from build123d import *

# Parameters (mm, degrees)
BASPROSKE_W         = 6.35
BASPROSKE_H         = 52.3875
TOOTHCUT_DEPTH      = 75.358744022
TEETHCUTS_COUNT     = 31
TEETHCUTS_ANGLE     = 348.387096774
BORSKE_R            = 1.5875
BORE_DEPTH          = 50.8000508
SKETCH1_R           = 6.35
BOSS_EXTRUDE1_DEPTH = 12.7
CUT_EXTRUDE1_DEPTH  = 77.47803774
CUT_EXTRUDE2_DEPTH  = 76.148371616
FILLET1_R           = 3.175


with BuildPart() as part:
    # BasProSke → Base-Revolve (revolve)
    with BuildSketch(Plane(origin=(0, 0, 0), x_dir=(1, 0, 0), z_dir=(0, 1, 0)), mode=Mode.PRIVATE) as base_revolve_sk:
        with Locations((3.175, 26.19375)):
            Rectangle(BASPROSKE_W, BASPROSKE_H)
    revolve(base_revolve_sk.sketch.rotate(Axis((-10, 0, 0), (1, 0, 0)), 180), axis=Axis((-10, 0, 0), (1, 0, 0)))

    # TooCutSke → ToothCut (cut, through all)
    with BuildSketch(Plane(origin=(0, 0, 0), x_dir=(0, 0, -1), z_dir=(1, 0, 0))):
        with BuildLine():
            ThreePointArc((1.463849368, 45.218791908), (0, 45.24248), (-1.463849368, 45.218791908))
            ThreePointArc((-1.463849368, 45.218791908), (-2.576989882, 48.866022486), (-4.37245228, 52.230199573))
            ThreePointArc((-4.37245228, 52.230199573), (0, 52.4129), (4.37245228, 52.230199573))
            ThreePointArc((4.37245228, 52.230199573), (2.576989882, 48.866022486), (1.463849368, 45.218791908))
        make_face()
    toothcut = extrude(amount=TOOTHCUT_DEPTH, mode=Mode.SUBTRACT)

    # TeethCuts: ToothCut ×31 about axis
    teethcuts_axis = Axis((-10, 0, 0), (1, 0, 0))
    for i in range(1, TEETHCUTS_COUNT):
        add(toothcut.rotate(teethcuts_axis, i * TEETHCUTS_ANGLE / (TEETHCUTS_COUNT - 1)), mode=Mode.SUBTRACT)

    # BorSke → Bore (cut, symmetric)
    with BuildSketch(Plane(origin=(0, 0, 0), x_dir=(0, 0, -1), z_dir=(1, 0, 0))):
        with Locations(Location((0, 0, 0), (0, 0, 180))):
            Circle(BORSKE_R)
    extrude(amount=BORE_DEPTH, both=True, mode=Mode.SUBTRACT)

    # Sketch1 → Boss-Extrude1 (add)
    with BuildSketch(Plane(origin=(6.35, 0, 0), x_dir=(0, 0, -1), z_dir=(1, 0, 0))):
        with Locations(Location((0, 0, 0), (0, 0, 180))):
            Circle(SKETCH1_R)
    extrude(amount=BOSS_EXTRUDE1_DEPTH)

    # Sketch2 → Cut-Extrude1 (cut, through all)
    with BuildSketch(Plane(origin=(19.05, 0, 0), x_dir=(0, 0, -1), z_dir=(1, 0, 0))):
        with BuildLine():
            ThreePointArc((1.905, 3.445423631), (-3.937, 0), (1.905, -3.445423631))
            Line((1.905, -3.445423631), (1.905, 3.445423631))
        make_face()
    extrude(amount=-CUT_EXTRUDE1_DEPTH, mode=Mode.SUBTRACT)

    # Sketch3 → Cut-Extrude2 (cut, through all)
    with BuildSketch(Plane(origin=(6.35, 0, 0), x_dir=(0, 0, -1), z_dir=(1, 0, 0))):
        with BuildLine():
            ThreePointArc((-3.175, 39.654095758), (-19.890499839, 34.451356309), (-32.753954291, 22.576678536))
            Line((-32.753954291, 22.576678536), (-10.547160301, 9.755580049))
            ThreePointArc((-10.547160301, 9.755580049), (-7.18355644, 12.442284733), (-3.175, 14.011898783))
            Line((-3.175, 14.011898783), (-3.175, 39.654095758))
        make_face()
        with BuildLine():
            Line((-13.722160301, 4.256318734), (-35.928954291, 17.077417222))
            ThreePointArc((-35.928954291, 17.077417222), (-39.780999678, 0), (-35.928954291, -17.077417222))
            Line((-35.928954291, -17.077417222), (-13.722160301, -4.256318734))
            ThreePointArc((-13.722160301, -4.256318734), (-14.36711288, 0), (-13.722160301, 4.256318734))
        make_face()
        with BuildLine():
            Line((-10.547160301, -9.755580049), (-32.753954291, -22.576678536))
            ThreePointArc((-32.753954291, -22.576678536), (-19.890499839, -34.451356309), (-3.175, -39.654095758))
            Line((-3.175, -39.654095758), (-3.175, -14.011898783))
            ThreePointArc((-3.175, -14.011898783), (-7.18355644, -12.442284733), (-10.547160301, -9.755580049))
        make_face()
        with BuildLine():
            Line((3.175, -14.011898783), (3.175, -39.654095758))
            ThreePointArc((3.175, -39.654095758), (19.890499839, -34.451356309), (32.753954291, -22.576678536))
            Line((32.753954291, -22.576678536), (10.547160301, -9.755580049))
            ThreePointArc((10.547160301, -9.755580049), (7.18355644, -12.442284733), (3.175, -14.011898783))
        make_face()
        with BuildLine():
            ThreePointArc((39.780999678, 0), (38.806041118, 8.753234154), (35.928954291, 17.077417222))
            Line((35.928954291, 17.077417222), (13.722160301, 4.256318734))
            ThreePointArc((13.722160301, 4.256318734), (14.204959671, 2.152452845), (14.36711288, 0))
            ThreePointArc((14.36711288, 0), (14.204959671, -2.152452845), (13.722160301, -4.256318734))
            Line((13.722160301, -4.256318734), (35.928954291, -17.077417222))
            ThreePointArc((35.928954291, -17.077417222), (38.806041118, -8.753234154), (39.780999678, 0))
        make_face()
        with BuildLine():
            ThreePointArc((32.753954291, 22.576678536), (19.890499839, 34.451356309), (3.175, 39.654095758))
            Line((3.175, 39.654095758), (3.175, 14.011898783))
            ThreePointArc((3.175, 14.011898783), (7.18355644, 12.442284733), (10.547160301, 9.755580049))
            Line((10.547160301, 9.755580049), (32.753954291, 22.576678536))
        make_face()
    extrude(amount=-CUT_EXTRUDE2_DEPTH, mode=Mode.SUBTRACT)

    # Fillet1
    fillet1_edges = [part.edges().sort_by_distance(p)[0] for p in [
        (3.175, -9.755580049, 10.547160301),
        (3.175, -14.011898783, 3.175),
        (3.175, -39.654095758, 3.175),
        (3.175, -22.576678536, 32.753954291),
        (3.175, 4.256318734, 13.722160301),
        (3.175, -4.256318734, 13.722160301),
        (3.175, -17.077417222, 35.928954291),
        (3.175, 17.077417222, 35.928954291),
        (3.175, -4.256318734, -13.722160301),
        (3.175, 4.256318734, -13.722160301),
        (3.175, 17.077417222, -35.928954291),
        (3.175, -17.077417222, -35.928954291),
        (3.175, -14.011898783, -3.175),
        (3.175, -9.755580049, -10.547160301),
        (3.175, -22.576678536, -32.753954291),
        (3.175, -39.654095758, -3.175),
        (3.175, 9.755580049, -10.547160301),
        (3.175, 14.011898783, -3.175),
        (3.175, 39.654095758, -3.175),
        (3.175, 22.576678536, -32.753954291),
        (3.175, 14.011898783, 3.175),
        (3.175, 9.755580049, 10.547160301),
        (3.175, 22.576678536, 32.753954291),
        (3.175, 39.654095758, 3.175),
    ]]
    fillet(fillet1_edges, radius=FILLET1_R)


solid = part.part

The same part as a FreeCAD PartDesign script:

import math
import FreeCAD as App
import Part
import Sketcher
Q = App.Units.Quantity


def edges_at(feature, points):
    """Names of the edges that pass closest to the given points."""
    edges = feature.Shape.Edges
    near = lambda p: min(range(len(edges)), key=lambda i: edges[i].distToShape(Part.Vertex(*p))[0])
    return sorted({f"Edge{near(p) + 1}" for p in points})


def add_polygon(sketch, points):
    """Adds a closed chain of lines whose ends are joined by coincident constraints."""
    first, n = sketch.GeometryCount, len(points)
    for a, b in zip(points, points[1:] + points[:1]):
        sketch.addGeometry(Part.LineSegment(App.Vector(*a, 0), App.Vector(*b, 0)), False)
    for i in range(n):
        sketch.addConstraint(Sketcher.Constraint("Coincident", first + i, 2, first + (i + 1) % n, 1))

doc = App.newDocument("Part")
body = doc.addObject("PartDesign::Body", "Body")

# Sketch on XZ plane
sketch1 = body.newObject("Sketcher::SketchObject", "Sketch")
sketch1.AttachmentSupport = (doc.getObject("XZ_Plane"), [""])
sketch1.MapMode = "FlatFace"
add_polygon(sketch1, [(0, -52), (0, 0), (6, 0), (6, -52)])  # lines 0-3
sketch1.addConstraint([
    Sketcher.Constraint("Vertical", 0),
    Sketcher.Constraint("Horizontal", 1),
    Sketcher.Constraint("Vertical", 2),
    Sketcher.Constraint("Horizontal", 3),
    Sketcher.Constraint("Coincident", 0, 2, -1, 1),
    Sketcher.Constraint("DistanceX", 1, 1, 1, 2, Q("0.25 in")),
    Sketcher.Constraint("DistanceY", 0, 1, 0, 2, Q("2.0625 in")),
])
revolution = body.newObject("PartDesign::Revolution", "Revolution")
revolution.Profile = sketch1
revolution.ReferenceAxis = (sketch1, ["H_Axis"])
revolution.Angle = 360

# Sketch on YZ plane
sketch2 = body.newObject("Sketcher::SketchObject", "Sketch001")
sketch2.AttachmentSupport = (doc.getObject("YZ_Plane"), [""])
sketch2.MapMode = "FlatFace"
sketch2.addGeometry([
    Part.ArcOfCircle(Part.Circle(App.Vector(0, 0, 0), App.Vector(0, 0, 1), 45.2), math.radians(-1.85), math.radians(1.85)),
    Part.ArcOfCircle(Part.Circle(App.Vector(41.3, -20.8, 0), App.Vector(0, 0, 1), 19.7), math.radians(56), math.radians(79)),
    Part.ArcOfCircle(Part.Circle(App.Vector(0, 0, 0), App.Vector(0, 0, 1), 52.4), math.radians(-4.79), math.radians(4.79)),
    Part.ArcOfCircle(Part.Circle(App.Vector(41.3, 20.8, 0), App.Vector(0, 0, 1), 19.7), math.radians(-79), math.radians(-56)),
], False)
sketch2.addConstraint([
    Sketcher.Constraint("Coincident", 0, 1, 1, 2),
    Sketcher.Constraint("Coincident", 1, 1, 2, 1),
    Sketcher.Constraint("Coincident", 2, 2, 3, 2),
    Sketcher.Constraint("Coincident", 3, 1, 0, 2),
    Sketcher.Constraint("Coincident", 0, 3, -1, 1),
    Sketcher.Constraint("Coincident", 2, 3, -1, 1),
    Sketcher.Constraint("Equal", 1, 3),
    Sketcher.Constraint("Symmetric", 1, 3, 3, 3, -1),
    Sketcher.Constraint("Radius", 1, Q("0.775 in")),
    Sketcher.Constraint("Radius", 0, Q("1.7812 in")),
    Sketcher.Constraint("Radius", 2, Q("2.0635 in")),
    Sketcher.Constraint("DistanceX", -1, 1, 1, 3, 41.323199),
    Sketcher.Constraint("DistanceX", -1, 1, 1, 1, 52.2302),
])
pocket1 = body.newObject("PartDesign::Pocket", "Pocket")
pocket1.Profile = sketch2
pocket1.Type = "ThroughAll"
pocket1.Reversed = True
doc.recompute()

polarpattern = body.newObject("PartDesign::PolarPattern", "PolarPattern")
polarpattern.Originals = [pocket1]
polarpattern.Axis = (doc.getObject("X_Axis"), [""])
polarpattern.Angle = 360
polarpattern.Occurrences = 31
body.Tip = polarpattern

# Sketch on YZ plane
sketch3 = body.newObject("Sketcher::SketchObject", "Sketch002")
sketch3.AttachmentSupport = (doc.getObject("YZ_Plane"), [""])
sketch3.MapMode = "FlatFace"
sketch3.addGeometry(Part.Circle(App.Vector(0, 0, 0), App.Vector(0, 0, 1), 1.6), False)
sketch3.addConstraint([
    Sketcher.Constraint("Coincident", 0, 3, -1, 1),
    Sketcher.Constraint("Diameter", 0, Q("0.125 in")),
])
pocket2 = body.newObject("PartDesign::Pocket", "Pocket001")
pocket2.Profile = sketch3
pocket2.Length = 101.600102
pocket2.Midplane = True

# Sketch on YZ plane
sketch4 = body.newObject("Sketcher::SketchObject", "Sketch003")
sketch4.AttachmentSupport = (doc.getObject("YZ_Plane"), [""])
sketch4.MapMode = "FlatFace"
sketch4.AttachmentOffset = App.Placement(App.Vector(0, 0, 0.25 * 25.4), App.Rotation())
sketch4.addGeometry(Part.Circle(App.Vector(0, 0, 0), App.Vector(0, 0, 1), 6), False)
sketch4.addConstraint([
    Sketcher.Constraint("Coincident", 0, 3, -1, 1),
    Sketcher.Constraint("Diameter", 0, Q("0.5 in")),
])
pad1 = body.newObject("PartDesign::Pad", "Pad")
pad1.Profile = sketch4
pad1.Length = Q("0.5 in")

# Sketch on YZ plane
sketch5 = body.newObject("Sketcher::SketchObject", "Sketch004")
sketch5.AttachmentSupport = (doc.getObject("YZ_Plane"), [""])
sketch5.MapMode = "FlatFace"
sketch5.AttachmentOffset = App.Placement(App.Vector(0, 0, 0.75 * 25.4), App.Rotation())
sketch5.addGeometry([
    Part.ArcOfCircle(Part.Circle(App.Vector(0, 0, 0), App.Vector(0, 0, 1), 3.9), math.radians(-29), math.radians(209)),
    Part.LineSegment(App.Vector(-3.4, -1.9, 0), App.Vector(3.4, -1.9, 0)),
], False)
sketch5.addConstraint([
    Sketcher.Constraint("Coincident", 0, 1, 1, 2),
    Sketcher.Constraint("Coincident", 1, 1, 0, 2),
    Sketcher.Constraint("Horizontal", 1),
    Sketcher.Constraint("Coincident", 0, 3, -1, 1),
    Sketcher.Constraint("Radius", 0, Q("0.155 in")),
    Sketcher.Constraint("DistanceY", 0, 1, -1, 1, Q("0.075 in")),
])
pocket3 = body.newObject("PartDesign::Pocket", "Pocket002")
pocket3.Profile = sketch5
pocket3.Type = "ThroughAll"

# Sketch on YZ plane
sketch6 = body.newObject("Sketcher::SketchObject", "Sketch005")
sketch6.AttachmentSupport = (doc.getObject("YZ_Plane"), [""])
sketch6.MapMode = "FlatFace"
sketch6.AttachmentOffset = App.Placement(App.Vector(0, 0, 0.25 * 25.4), App.Rotation())
sketch6.addGeometry([
    Part.ArcOfCircle(Part.Circle(App.Vector(0, 0, 0), App.Vector(0, 0, 1), 39.8), math.radians(5), math.radians(55)),  # 0
    Part.LineSegment(App.Vector(22.6, 32.8, 0), App.Vector(9.8, 10.5, 0)),  # 1
    Part.ArcOfCircle(Part.Circle(App.Vector(0, 0, 0), App.Vector(0, 0, 1), 14.4), math.radians(13), math.radians(47)),  # 2
    Part.LineSegment(App.Vector(14, 3.2, 0), App.Vector(39.7, 3.2, 0)),  # 3
    Part.LineSegment(App.Vector(4.3, 13.7, 0), App.Vector(17.1, 35.9, 0)),  # 4
    Part.ArcOfCircle(Part.Circle(App.Vector(0, 0, 0), App.Vector(0, 0, 1), 39.8), math.radians(65), math.radians(115)),  # 5
    Part.LineSegment(App.Vector(-17.1, 35.9, 0), App.Vector(-4.3, 13.7, 0)),  # 6
    Part.ArcOfCircle(Part.Circle(App.Vector(0, 0, 0), App.Vector(0, 0, 1), 14.4), math.radians(73), math.radians(107)),  # 7
    Part.LineSegment(App.Vector(-9.8, 10.5, 0), App.Vector(-22.6, 32.8, 0)),  # 8
    Part.ArcOfCircle(Part.Circle(App.Vector(0, 0, 0), App.Vector(0, 0, 1), 39.8), math.radians(125), math.radians(175)),  # 9
    Part.LineSegment(App.Vector(-39.7, 3.2, 0), App.Vector(-14, 3.2, 0)),  # 10
    Part.ArcOfCircle(Part.Circle(App.Vector(0, 0, 0), App.Vector(0, 0, 1), 14.4), math.radians(133), math.radians(167)),  # 11
    Part.LineSegment(App.Vector(-14, -3.2, 0), App.Vector(-39.7, -3.2, 0)),  # 12
    Part.ArcOfCircle(Part.Circle(App.Vector(0, 0, 0), App.Vector(0, 0, 1), 39.8), math.radians(-175), math.radians(-125)),  # 13
    Part.LineSegment(App.Vector(-22.6, -32.8, 0), App.Vector(-9.8, -10.5, 0)),  # 14
    Part.ArcOfCircle(Part.Circle(App.Vector(0, 0, 0), App.Vector(0, 0, 1), 14.4), math.radians(-167), math.radians(-133)),  # 15
    Part.ArcOfCircle(Part.Circle(App.Vector(0, 0, 0), App.Vector(0, 0, 1), 39.8), math.radians(-90), math.radians(-65)),  # 16
    Part.LineSegment(App.Vector(17.1, -35.9, 0), App.Vector(4.3, -13.7, 0)),  # 17
    Part.ArcOfCircle(Part.Circle(App.Vector(0, 0, 0), App.Vector(0, 0, 1), 14.4), math.radians(-90), math.radians(-72.77)),  # 18
    Part.ArcOfCircle(Part.Circle(App.Vector(0, 0, 0), App.Vector(0, 0, 1), 14.4), math.radians(-107.23), math.radians(-90)),  # 19
    Part.LineSegment(App.Vector(-4.3, -13.7, 0), App.Vector(-17.1, -35.9, 0)),  # 20
    Part.ArcOfCircle(Part.Circle(App.Vector(0, 0, 0), App.Vector(0, 0, 1), 39.8), math.radians(-115), math.radians(-90)),  # 21
    Part.ArcOfCircle(Part.Circle(App.Vector(0, 0, 0), App.Vector(0, 0, 1), 39.8), math.radians(-55), math.radians(-5)),  # 22
    Part.LineSegment(App.Vector(39.7, -3.2, 0), App.Vector(14, -3.2, 0)),  # 23
    Part.ArcOfCircle(Part.Circle(App.Vector(0, 0, 0), App.Vector(0, 0, 1), 14.4), math.radians(-47), math.radians(-13)),  # 24
    Part.LineSegment(App.Vector(9.8, -10.5, 0), App.Vector(22.6, -32.8, 0)),  # 25
], False)
sketch6.addConstraint([
    Sketcher.Constraint("Coincident", 0, 2, 1, 1),
    Sketcher.Constraint("Coincident", 1, 2, 2, 2),
    Sketcher.Constraint("Coincident", 2, 1, 3, 1),
    Sketcher.Constraint("Coincident", 3, 2, 0, 1),
    Sketcher.Constraint("Coincident", 4, 2, 5, 1),
    Sketcher.Constraint("Coincident", 5, 2, 6, 1),
    Sketcher.Constraint("Coincident", 6, 2, 7, 2),
    Sketcher.Constraint("Coincident", 7, 1, 4, 1),
    Sketcher.Constraint("Coincident", 8, 2, 9, 1),
    Sketcher.Constraint("Coincident", 9, 2, 10, 1),
    Sketcher.Constraint("Coincident", 10, 2, 11, 2),
    Sketcher.Constraint("Coincident", 11, 1, 8, 1),
    Sketcher.Constraint("Coincident", 12, 2, 13, 1),
    Sketcher.Constraint("Coincident", 13, 2, 14, 1),
    Sketcher.Constraint("Coincident", 14, 2, 15, 2),
    Sketcher.Constraint("Coincident", 15, 1, 12, 1),
    Sketcher.Constraint("Coincident", 16, 2, 17, 1),
    Sketcher.Constraint("Coincident", 17, 2, 18, 2),
    Sketcher.Constraint("Tangent", 18, 1, 19, 2),
    Sketcher.Constraint("Coincident", 19, 1, 20, 1),
    Sketcher.Constraint("Coincident", 20, 2, 21, 1),
    Sketcher.Constraint("Tangent", 21, 2, 16, 1),
    Sketcher.Constraint("Coincident", 22, 2, 23, 1),
    Sketcher.Constraint("Coincident", 23, 2, 24, 2),
    Sketcher.Constraint("Coincident", 24, 1, 25, 1),
    Sketcher.Constraint("Coincident", 25, 2, 22, 1),
    Sketcher.Constraint("Horizontal", 3),
    Sketcher.Constraint("Horizontal", 10),
    Sketcher.Constraint("Horizontal", 12),
    Sketcher.Constraint("Horizontal", 23),
    Sketcher.Constraint("Coincident", 0, 3, -1, 1),
    Sketcher.Constraint("Coincident", 2, 3, -1, 1),
    Sketcher.Constraint("Coincident", 5, 3, -1, 1),
    Sketcher.Constraint("Coincident", 7, 3, -1, 1),
    Sketcher.Constraint("Coincident", 9, 3, -1, 1),
    Sketcher.Constraint("Coincident", 11, 3, -1, 1),
    Sketcher.Constraint("Coincident", 13, 3, -1, 1),
    Sketcher.Constraint("Coincident", 15, 3, -1, 1),
    Sketcher.Constraint("Coincident", 16, 3, -1, 1),
    Sketcher.Constraint("Coincident", 18, 3, -1, 1),
    Sketcher.Constraint("Coincident", 22, 3, -1, 1),
    Sketcher.Constraint("Coincident", 24, 3, -1, 1),
    Sketcher.Constraint("Equal", 0, 5),
    Sketcher.Constraint("Equal", 2, 7),
    Sketcher.Constraint("Equal", 5, 9),
    Sketcher.Constraint("Equal", 7, 11),
    Sketcher.Constraint("Equal", 9, 13),
    Sketcher.Constraint("Equal", 11, 15),
    Sketcher.Constraint("Equal", 13, 16),
    Sketcher.Constraint("Equal", 15, 18),
    Sketcher.Constraint("Equal", 18, 19),
    Sketcher.Constraint("Equal", 16, 21),
    Sketcher.Constraint("Equal", 21, 22),
    Sketcher.Constraint("Equal", 19, 24),
    Sketcher.Constraint("PointOnObject", 18, 1, -2),
    Sketcher.Constraint("PointOnObject", 21, 2, -2),
    Sketcher.Constraint("Parallel", 1, 4),
    Sketcher.Constraint("Parallel", 6, 8),
    Sketcher.Constraint("Parallel", 4, 14),
    Sketcher.Constraint("Parallel", 8, 17),
    Sketcher.Constraint("Parallel", 14, 20),
    Sketcher.Constraint("Parallel", 17, 25),
    Sketcher.Constraint("Horizontal", 4, 2, 5, 2),
    Sketcher.Constraint("Horizontal", 6, 2, 7, 1),
    Sketcher.Constraint("Horizontal", 0, 2, 8, 2),
    Sketcher.Constraint("Horizontal", 3, 2, 9, 2),
    Sketcher.Constraint("Horizontal", 17, 2, 19, 1),
    Sketcher.Constraint("Horizontal", 15, 1, 22, 2),
    Sketcher.Constraint("Horizontal", 14, 2, 24, 1),
    Sketcher.Constraint("Vertical", 9, 2, 12, 2),
    Sketcher.Constraint("Vertical", 8, 2, 13, 2),
    Sketcher.Constraint("Vertical", 4, 2, 16, 2),
    Sketcher.Constraint("Equal", 1, 4),
    Sketcher.Constraint("Angle", 1, Q("-120 deg")),
    Sketcher.Constraint("Radius", 0, 39.781),
    Sketcher.Constraint("DistanceY", 12, 2, 9, 2, Q("0.25 in")),
    Sketcher.Constraint("DistanceY", 0, 2, 4, 2, Q("0.125 in")),
    Sketcher.Constraint("Radius", 2, 14.367113),
])
pocket4 = body.newObject("PartDesign::Pocket", "Pocket003")
pocket4.Profile = sketch6
pocket4.Type = "ThroughAll"
doc.recompute()

fillet = body.newObject("PartDesign::Fillet", "Fillet")
fillet.Base = (pocket4, edges_at(pocket4, [
    (3.175, -9.756, 10.547),
    (3.175, -14.012, 3.175),
    (3.175, -39.654, 3.175),
    (3.175, -22.577, 32.754),
    (3.175, 4.256, 13.722),
    (3.175, -4.256, 13.722),
    (3.175, -17.077, 35.929),
    (3.175, 17.077, 35.929),
    (3.175, -4.256, -13.722),
    (3.175, 4.256, -13.722),
    (3.175, 17.077, -35.929),
    (3.175, -17.077, -35.929),
    (3.175, -14.012, -3.175),
    (3.175, -9.756, -10.547),
    (3.175, -22.577, -32.754),
    (3.175, -39.654, -3.175),
    (3.175, 9.756, -10.547),
    (3.175, 14.012, -3.175),
    (3.175, 39.654, -3.175),
    (3.175, 22.577, -32.754),
    (3.175, 14.012, 3.175),
    (3.175, 9.756, 10.547),
    (3.175, 22.577, 32.754),
    (3.175, 39.654, 3.175),
]))
fillet.Radius = Q("0.125 in")

doc.recompute()
